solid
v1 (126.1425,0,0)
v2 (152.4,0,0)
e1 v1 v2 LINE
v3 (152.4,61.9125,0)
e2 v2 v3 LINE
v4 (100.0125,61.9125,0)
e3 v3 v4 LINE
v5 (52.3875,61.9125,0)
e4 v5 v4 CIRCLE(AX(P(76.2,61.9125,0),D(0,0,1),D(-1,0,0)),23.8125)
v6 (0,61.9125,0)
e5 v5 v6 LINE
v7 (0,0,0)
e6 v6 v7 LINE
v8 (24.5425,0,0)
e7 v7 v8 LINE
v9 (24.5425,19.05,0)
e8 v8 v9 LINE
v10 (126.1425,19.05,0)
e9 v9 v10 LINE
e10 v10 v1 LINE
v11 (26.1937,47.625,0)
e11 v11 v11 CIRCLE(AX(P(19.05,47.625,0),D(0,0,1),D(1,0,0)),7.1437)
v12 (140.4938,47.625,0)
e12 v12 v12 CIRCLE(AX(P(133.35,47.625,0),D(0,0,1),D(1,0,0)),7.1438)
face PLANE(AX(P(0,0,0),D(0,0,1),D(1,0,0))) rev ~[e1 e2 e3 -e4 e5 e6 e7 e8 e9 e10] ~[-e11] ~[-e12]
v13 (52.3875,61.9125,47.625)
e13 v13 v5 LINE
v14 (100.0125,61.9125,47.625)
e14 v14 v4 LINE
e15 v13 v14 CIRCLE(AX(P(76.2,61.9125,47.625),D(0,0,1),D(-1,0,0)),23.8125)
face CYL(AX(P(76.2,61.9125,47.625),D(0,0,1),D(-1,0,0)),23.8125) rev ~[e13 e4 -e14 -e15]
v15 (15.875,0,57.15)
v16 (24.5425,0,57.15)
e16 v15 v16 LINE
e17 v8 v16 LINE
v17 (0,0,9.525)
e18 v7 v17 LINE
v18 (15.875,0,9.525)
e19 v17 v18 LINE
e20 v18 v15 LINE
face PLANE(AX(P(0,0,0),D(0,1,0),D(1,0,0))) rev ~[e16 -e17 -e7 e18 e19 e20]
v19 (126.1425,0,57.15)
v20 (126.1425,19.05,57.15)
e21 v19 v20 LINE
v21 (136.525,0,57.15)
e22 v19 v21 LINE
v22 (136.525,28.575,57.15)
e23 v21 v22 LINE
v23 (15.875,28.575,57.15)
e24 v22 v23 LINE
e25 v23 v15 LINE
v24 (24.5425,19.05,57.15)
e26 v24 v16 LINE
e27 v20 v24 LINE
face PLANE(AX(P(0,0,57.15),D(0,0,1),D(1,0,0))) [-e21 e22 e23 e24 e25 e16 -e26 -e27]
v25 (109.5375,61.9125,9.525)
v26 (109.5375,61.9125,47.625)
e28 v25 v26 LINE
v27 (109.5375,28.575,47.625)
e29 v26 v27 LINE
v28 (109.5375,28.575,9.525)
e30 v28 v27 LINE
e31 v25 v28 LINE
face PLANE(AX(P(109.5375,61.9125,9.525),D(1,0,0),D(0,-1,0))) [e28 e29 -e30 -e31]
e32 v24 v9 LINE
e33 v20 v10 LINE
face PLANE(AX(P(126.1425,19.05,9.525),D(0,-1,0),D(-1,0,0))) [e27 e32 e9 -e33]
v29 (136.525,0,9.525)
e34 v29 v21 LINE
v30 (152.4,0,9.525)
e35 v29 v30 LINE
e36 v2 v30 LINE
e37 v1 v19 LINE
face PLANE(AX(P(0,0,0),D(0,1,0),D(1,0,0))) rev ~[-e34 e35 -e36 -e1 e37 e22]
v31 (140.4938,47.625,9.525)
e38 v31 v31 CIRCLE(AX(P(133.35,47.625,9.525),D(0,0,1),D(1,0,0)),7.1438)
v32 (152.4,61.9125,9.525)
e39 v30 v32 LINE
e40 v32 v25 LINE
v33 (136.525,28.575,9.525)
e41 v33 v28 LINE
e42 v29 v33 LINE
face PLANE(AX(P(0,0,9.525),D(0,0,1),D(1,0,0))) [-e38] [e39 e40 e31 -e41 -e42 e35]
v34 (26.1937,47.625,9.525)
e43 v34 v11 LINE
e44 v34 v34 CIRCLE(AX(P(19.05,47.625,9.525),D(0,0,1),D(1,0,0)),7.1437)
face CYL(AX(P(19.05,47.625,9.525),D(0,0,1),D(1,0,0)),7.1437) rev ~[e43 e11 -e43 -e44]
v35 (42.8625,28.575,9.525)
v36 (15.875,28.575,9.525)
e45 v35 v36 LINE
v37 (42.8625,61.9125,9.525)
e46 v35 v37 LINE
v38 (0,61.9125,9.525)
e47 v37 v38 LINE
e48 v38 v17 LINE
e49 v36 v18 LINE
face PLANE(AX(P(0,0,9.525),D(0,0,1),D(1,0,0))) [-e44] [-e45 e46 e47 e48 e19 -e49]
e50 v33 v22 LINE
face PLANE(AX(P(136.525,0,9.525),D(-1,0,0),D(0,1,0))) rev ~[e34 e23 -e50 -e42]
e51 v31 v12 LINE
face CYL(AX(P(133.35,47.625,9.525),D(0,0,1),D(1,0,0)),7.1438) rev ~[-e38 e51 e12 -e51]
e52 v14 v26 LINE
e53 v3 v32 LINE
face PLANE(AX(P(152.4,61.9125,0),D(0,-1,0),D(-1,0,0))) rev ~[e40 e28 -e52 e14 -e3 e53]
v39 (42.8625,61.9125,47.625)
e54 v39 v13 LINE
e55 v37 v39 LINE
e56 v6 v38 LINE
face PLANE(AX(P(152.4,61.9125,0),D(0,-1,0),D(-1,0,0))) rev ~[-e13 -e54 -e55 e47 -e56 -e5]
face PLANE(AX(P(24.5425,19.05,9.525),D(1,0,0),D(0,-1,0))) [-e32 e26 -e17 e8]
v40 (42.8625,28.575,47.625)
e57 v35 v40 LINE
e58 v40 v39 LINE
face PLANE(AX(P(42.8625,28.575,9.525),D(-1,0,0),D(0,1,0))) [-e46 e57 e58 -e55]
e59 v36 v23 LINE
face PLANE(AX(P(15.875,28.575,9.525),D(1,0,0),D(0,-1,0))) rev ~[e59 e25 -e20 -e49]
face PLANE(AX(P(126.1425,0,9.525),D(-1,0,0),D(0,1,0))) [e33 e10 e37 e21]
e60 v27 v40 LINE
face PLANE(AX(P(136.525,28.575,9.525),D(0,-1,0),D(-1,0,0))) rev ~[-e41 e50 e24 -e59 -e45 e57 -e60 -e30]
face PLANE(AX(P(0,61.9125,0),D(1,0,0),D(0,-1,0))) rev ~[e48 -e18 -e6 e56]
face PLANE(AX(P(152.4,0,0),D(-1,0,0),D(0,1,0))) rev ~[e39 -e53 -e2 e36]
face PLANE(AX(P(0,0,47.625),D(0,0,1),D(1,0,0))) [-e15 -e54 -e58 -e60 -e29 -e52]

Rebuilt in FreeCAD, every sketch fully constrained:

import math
import FreeCAD as App
import Part
import Sketcher
from FreeCAD import Vector
Q = App.Units.Quantity


def add_polygon(sketch, points):
    """Adds a closed chain of lines whose ends are joined by coincident constraints."""
    first, n = sketch.GeometryCount, len(points)
    for a, b in zip(points, points[1:] + points[:1]):
        sketch.addGeometry(Part.LineSegment(App.Vector(*a, 0), App.Vector(*b, 0)), False)
    for i in range(n):
        sketch.addConstraint(Sketcher.Constraint("Coincident", first + i, 2, first + (i + 1) % n, 1))

doc = App.newDocument("Part")
body = doc.addObject("PartDesign::Body", "Body")

# Sketch on XY plane
sketch1 = doc.addObject("Sketcher::SketchObject", "Sketch")
body.addObject(sketch1)
sketch1.AttachmentSupport = (doc.XY_Plane, [""])
sketch1.MapMode = "FlatFace"
add_polygon(sketch1, [(0, 62), (0, 0), (152, 0), (152, 62)])  # lines 0-3
sketch1.addConstraint([
    Sketcher.Constraint("Vertical", 0),
    Sketcher.Constraint("Horizontal", 1),
    Sketcher.Constraint("Vertical", 2),
    Sketcher.Constraint("Horizontal", 3),
    Sketcher.Constraint("Coincident", 0, 2, -1, 1),
    Sketcher.Constraint("DistanceX", 1, 1, 1, 2, Q("6 in")),
    Sketcher.Constraint("DistanceY", 0, 2, 0, 1, Q("2.4375 in")),
])
pad1 = doc.addObject("PartDesign::Pad", "Pad")
body.addObject(pad1)
pad1.Profile = sketch1
pad1.Length = Q("0.375 in")

# Sketch on XY plane
sketch2 = doc.addObject("Sketcher::SketchObject", "Sketch001")
body.addObject(sketch2)
sketch2.AttachmentSupport = (doc.XY_Plane, [""])
sketch2.MapMode = "FlatFace"
sketch2.AttachmentOffset = App.Placement(Vector(0, 0, 0.375 * 25.4), App.Rotation())
add_polygon(sketch2, [(16, 29), (16, 0), (137, 0), (137, 29)])  # lines 0-3
sketch2.addConstraint([
    Sketcher.Constraint("Vertical", 0),
    Sketcher.Constraint("Horizontal", 1),
    Sketcher.Constraint("Vertical", 2),
    Sketcher.Constraint("Horizontal", 3),
    Sketcher.Constraint("PointOnObject", 0, 2, -1),
    Sketcher.Constraint("DistanceX", 1, 1, 1, 2, Q("4.75 in")),
    Sketcher.Constraint("DistanceY", 0, 2, 0, 1, Q("1.125 in")),
    Sketcher.Constraint("DistanceX", -1, 1, 0, 2, Q("0.625 in")),
])
pad2 = doc.addObject("PartDesign::Pad", "Pad001")
body.addObject(pad2)
pad2.Profile = sketch2
pad2.Length = Q("1.875 in")

# Sketch on XY plane
sketch3 = doc.addObject("Sketcher::SketchObject", "Sketch002")
body.addObject(sketch3)
sketch3.AttachmentSupport = (doc.XY_Plane, [""])
sketch3.MapMode = "FlatFace"
sketch3.AttachmentOffset = App.Placement(Vector(0, 0, 0.375 * 25.4), App.Rotation())
add_polygon(sketch3, [(110, 62), (43, 62), (43, 29), (110, 29)])  # lines 0-3
sketch3.addConstraint([
    Sketcher.Constraint("Horizontal", 0),
    Sketcher.Constraint("Vertical", 1),
    Sketcher.Constraint("Horizontal", 2),
    Sketcher.Constraint("Vertical", 3),
    Sketcher.Constraint("DistanceX", 0, 2, 0, 1, Q("2.625 in")),
    Sketcher.Constraint("DistanceY", 1, 2, 1, 1, Q("1.3125 in")),
    Sketcher.Constraint("DistanceX", -1, 1, 0, 2, Q("1.6875 in")),
    Sketcher.Constraint("DistanceY", -1, 1, 0, 2, Q("2.4375 in")),
])
pad3 = doc.addObject("PartDesign::Pad", "Pad002")
body.addObject(pad3)
pad3.Profile = sketch3
pad3.Length = Q("1.5 in")

# Sketch on XY plane
sketch4 = doc.addObject("Sketcher::SketchObject", "Sketch003")
body.addObject(sketch4)
sketch4.AttachmentSupport = (doc.XY_Plane, [""])
sketch4.MapMode = "FlatFace"
sketch4.AttachmentOffset = App.Placement(Vector(0, 0, 0.375 * 25.4), App.Rotation())
add_polygon(sketch4, [(25, 19), (25, 0), (126, 0), (126, 19)])  # lines 0-3
sketch4.addConstraint([
    Sketcher.Constraint("Vertical", 0),
    Sketcher.Constraint("Horizontal", 1),
    Sketcher.Constraint("Vertical", 2),
    Sketcher.Constraint("Horizontal", 3),
    Sketcher.Constraint("PointOnObject", 0, 2, -1),
    Sketcher.Constraint("DistanceX", 1, 1, 1, 2, Q("4 in")),
    Sketcher.Constraint("DistanceY", 0, 2, 0, 1, Q("0.75 in")),
    Sketcher.Constraint("DistanceX", -1, 1, 0, 2, Q("24.5425 mm")),
])
pocket1 = doc.addObject("PartDesign::Pocket", "Pocket")
body.addObject(pocket1)
pocket1.Profile = sketch4
pocket1.Type = "ThroughAll"
pocket1.Midplane = True

# Sketch on XY plane
sketch5 = doc.addObject("Sketcher::SketchObject", "Sketch004")
body.addObject(sketch5)
sketch5.AttachmentSupport = (doc.XY_Plane, [""])
sketch5.MapMode = "FlatFace"
sketch5.AttachmentOffset = App.Placement(Vector(0, 0, 1.875 * 25.4), App.Rotation())
sketch5.addGeometry([
    Part.ArcOfCircle(Part.Circle(Vector(76, 62, 0), Vector(0, 0, 1), 24), math.radians(180), math.radians(360)),
    Part.LineSegment(Vector(100, 62, 0), Vector(52, 62, 0)),
], False)
sketch5.addConstraint([
    Sketcher.Constraint("Coincident", 0, 1, 1, 2),
    Sketcher.Constraint("Coincident", 1, 1, 0, 2),
    Sketcher.Constraint("Horizontal", 1),
    Sketcher.Constraint("Radius", 0, Q("0.9375 in")),
    Sketcher.Constraint("DistanceX", -1, 1, 0, 3, Q("3 in")),
    Sketcher.Constraint("DistanceY", -1, 1, 0, 3, Q("2.4375 in")),
    Sketcher.Constraint("DistanceY", -1, 1, 0, 1, Q("2.4375 in")),
])
pocket2 = doc.addObject("PartDesign::Pocket", "Pocket001")
body.addObject(pocket2)
pocket2.Profile = sketch5
pocket2.Length = Q("1.875 in")

# Sketch on XY plane
sketch6 = doc.addObject("Sketcher::SketchObject", "Sketch005")
body.addObject(sketch6)
sketch6.AttachmentSupport = (doc.XY_Plane, [""])
sketch6.MapMode = "FlatFace"
sketch6.AttachmentOffset = App.Placement(Vector(0, 0, 0.375 * 25.4), App.Rotation())
sketch6.addGeometry(Part.Circle(Vector(19, 48, 0), Vector(0, 0, 1), 7), False)
sketch6.addConstraint([
    Sketcher.Constraint("Diameter", 0, Q("0.5625 in")),
    Sketcher.Constraint("DistanceX", -1, 1, 0, 3, Q("0.75 in")),
    Sketcher.Constraint("DistanceY", -1, 1, 0, 3, Q("1.875 in")),
])
pocket3 = doc.addObject("PartDesign::Pocket", "Pocket002")
body.addObject(pocket3)
pocket3.Profile = sketch6
pocket3.Length = Q("0.375 in")

# Sketch on XY plane
sketch7 = doc.addObject("Sketcher::SketchObject", "Sketch006")
body.addObject(sketch7)
sketch7.AttachmentSupport = (doc.XY_Plane, [""])
sketch7.MapMode = "FlatFace"
sketch7.AttachmentOffset = App.Placement(Vector(0, 0, 0.375 * 25.4), App.Rotation())
sketch7.addGeometry(Part.Circle(Vector(133, 48, 0), Vector(0, 0, 1), 7), False)
sketch7.addConstraint([
    Sketcher.Constraint("Diameter", 0, Q("0.5625 in")),
    Sketcher.Constraint("DistanceX", -1, 1, 0, 3, Q("5.25 in")),
    Sketcher.Constraint("DistanceY", -1, 1, 0, 3, Q("1.875 in")),
])
pocket4 = doc.addObject("PartDesign::Pocket", "Pocket003")
body.addObject(pocket4)
pocket4.Profile = sketch7
pocket4.Length = Q("0.375 in")

doc.recompute()
